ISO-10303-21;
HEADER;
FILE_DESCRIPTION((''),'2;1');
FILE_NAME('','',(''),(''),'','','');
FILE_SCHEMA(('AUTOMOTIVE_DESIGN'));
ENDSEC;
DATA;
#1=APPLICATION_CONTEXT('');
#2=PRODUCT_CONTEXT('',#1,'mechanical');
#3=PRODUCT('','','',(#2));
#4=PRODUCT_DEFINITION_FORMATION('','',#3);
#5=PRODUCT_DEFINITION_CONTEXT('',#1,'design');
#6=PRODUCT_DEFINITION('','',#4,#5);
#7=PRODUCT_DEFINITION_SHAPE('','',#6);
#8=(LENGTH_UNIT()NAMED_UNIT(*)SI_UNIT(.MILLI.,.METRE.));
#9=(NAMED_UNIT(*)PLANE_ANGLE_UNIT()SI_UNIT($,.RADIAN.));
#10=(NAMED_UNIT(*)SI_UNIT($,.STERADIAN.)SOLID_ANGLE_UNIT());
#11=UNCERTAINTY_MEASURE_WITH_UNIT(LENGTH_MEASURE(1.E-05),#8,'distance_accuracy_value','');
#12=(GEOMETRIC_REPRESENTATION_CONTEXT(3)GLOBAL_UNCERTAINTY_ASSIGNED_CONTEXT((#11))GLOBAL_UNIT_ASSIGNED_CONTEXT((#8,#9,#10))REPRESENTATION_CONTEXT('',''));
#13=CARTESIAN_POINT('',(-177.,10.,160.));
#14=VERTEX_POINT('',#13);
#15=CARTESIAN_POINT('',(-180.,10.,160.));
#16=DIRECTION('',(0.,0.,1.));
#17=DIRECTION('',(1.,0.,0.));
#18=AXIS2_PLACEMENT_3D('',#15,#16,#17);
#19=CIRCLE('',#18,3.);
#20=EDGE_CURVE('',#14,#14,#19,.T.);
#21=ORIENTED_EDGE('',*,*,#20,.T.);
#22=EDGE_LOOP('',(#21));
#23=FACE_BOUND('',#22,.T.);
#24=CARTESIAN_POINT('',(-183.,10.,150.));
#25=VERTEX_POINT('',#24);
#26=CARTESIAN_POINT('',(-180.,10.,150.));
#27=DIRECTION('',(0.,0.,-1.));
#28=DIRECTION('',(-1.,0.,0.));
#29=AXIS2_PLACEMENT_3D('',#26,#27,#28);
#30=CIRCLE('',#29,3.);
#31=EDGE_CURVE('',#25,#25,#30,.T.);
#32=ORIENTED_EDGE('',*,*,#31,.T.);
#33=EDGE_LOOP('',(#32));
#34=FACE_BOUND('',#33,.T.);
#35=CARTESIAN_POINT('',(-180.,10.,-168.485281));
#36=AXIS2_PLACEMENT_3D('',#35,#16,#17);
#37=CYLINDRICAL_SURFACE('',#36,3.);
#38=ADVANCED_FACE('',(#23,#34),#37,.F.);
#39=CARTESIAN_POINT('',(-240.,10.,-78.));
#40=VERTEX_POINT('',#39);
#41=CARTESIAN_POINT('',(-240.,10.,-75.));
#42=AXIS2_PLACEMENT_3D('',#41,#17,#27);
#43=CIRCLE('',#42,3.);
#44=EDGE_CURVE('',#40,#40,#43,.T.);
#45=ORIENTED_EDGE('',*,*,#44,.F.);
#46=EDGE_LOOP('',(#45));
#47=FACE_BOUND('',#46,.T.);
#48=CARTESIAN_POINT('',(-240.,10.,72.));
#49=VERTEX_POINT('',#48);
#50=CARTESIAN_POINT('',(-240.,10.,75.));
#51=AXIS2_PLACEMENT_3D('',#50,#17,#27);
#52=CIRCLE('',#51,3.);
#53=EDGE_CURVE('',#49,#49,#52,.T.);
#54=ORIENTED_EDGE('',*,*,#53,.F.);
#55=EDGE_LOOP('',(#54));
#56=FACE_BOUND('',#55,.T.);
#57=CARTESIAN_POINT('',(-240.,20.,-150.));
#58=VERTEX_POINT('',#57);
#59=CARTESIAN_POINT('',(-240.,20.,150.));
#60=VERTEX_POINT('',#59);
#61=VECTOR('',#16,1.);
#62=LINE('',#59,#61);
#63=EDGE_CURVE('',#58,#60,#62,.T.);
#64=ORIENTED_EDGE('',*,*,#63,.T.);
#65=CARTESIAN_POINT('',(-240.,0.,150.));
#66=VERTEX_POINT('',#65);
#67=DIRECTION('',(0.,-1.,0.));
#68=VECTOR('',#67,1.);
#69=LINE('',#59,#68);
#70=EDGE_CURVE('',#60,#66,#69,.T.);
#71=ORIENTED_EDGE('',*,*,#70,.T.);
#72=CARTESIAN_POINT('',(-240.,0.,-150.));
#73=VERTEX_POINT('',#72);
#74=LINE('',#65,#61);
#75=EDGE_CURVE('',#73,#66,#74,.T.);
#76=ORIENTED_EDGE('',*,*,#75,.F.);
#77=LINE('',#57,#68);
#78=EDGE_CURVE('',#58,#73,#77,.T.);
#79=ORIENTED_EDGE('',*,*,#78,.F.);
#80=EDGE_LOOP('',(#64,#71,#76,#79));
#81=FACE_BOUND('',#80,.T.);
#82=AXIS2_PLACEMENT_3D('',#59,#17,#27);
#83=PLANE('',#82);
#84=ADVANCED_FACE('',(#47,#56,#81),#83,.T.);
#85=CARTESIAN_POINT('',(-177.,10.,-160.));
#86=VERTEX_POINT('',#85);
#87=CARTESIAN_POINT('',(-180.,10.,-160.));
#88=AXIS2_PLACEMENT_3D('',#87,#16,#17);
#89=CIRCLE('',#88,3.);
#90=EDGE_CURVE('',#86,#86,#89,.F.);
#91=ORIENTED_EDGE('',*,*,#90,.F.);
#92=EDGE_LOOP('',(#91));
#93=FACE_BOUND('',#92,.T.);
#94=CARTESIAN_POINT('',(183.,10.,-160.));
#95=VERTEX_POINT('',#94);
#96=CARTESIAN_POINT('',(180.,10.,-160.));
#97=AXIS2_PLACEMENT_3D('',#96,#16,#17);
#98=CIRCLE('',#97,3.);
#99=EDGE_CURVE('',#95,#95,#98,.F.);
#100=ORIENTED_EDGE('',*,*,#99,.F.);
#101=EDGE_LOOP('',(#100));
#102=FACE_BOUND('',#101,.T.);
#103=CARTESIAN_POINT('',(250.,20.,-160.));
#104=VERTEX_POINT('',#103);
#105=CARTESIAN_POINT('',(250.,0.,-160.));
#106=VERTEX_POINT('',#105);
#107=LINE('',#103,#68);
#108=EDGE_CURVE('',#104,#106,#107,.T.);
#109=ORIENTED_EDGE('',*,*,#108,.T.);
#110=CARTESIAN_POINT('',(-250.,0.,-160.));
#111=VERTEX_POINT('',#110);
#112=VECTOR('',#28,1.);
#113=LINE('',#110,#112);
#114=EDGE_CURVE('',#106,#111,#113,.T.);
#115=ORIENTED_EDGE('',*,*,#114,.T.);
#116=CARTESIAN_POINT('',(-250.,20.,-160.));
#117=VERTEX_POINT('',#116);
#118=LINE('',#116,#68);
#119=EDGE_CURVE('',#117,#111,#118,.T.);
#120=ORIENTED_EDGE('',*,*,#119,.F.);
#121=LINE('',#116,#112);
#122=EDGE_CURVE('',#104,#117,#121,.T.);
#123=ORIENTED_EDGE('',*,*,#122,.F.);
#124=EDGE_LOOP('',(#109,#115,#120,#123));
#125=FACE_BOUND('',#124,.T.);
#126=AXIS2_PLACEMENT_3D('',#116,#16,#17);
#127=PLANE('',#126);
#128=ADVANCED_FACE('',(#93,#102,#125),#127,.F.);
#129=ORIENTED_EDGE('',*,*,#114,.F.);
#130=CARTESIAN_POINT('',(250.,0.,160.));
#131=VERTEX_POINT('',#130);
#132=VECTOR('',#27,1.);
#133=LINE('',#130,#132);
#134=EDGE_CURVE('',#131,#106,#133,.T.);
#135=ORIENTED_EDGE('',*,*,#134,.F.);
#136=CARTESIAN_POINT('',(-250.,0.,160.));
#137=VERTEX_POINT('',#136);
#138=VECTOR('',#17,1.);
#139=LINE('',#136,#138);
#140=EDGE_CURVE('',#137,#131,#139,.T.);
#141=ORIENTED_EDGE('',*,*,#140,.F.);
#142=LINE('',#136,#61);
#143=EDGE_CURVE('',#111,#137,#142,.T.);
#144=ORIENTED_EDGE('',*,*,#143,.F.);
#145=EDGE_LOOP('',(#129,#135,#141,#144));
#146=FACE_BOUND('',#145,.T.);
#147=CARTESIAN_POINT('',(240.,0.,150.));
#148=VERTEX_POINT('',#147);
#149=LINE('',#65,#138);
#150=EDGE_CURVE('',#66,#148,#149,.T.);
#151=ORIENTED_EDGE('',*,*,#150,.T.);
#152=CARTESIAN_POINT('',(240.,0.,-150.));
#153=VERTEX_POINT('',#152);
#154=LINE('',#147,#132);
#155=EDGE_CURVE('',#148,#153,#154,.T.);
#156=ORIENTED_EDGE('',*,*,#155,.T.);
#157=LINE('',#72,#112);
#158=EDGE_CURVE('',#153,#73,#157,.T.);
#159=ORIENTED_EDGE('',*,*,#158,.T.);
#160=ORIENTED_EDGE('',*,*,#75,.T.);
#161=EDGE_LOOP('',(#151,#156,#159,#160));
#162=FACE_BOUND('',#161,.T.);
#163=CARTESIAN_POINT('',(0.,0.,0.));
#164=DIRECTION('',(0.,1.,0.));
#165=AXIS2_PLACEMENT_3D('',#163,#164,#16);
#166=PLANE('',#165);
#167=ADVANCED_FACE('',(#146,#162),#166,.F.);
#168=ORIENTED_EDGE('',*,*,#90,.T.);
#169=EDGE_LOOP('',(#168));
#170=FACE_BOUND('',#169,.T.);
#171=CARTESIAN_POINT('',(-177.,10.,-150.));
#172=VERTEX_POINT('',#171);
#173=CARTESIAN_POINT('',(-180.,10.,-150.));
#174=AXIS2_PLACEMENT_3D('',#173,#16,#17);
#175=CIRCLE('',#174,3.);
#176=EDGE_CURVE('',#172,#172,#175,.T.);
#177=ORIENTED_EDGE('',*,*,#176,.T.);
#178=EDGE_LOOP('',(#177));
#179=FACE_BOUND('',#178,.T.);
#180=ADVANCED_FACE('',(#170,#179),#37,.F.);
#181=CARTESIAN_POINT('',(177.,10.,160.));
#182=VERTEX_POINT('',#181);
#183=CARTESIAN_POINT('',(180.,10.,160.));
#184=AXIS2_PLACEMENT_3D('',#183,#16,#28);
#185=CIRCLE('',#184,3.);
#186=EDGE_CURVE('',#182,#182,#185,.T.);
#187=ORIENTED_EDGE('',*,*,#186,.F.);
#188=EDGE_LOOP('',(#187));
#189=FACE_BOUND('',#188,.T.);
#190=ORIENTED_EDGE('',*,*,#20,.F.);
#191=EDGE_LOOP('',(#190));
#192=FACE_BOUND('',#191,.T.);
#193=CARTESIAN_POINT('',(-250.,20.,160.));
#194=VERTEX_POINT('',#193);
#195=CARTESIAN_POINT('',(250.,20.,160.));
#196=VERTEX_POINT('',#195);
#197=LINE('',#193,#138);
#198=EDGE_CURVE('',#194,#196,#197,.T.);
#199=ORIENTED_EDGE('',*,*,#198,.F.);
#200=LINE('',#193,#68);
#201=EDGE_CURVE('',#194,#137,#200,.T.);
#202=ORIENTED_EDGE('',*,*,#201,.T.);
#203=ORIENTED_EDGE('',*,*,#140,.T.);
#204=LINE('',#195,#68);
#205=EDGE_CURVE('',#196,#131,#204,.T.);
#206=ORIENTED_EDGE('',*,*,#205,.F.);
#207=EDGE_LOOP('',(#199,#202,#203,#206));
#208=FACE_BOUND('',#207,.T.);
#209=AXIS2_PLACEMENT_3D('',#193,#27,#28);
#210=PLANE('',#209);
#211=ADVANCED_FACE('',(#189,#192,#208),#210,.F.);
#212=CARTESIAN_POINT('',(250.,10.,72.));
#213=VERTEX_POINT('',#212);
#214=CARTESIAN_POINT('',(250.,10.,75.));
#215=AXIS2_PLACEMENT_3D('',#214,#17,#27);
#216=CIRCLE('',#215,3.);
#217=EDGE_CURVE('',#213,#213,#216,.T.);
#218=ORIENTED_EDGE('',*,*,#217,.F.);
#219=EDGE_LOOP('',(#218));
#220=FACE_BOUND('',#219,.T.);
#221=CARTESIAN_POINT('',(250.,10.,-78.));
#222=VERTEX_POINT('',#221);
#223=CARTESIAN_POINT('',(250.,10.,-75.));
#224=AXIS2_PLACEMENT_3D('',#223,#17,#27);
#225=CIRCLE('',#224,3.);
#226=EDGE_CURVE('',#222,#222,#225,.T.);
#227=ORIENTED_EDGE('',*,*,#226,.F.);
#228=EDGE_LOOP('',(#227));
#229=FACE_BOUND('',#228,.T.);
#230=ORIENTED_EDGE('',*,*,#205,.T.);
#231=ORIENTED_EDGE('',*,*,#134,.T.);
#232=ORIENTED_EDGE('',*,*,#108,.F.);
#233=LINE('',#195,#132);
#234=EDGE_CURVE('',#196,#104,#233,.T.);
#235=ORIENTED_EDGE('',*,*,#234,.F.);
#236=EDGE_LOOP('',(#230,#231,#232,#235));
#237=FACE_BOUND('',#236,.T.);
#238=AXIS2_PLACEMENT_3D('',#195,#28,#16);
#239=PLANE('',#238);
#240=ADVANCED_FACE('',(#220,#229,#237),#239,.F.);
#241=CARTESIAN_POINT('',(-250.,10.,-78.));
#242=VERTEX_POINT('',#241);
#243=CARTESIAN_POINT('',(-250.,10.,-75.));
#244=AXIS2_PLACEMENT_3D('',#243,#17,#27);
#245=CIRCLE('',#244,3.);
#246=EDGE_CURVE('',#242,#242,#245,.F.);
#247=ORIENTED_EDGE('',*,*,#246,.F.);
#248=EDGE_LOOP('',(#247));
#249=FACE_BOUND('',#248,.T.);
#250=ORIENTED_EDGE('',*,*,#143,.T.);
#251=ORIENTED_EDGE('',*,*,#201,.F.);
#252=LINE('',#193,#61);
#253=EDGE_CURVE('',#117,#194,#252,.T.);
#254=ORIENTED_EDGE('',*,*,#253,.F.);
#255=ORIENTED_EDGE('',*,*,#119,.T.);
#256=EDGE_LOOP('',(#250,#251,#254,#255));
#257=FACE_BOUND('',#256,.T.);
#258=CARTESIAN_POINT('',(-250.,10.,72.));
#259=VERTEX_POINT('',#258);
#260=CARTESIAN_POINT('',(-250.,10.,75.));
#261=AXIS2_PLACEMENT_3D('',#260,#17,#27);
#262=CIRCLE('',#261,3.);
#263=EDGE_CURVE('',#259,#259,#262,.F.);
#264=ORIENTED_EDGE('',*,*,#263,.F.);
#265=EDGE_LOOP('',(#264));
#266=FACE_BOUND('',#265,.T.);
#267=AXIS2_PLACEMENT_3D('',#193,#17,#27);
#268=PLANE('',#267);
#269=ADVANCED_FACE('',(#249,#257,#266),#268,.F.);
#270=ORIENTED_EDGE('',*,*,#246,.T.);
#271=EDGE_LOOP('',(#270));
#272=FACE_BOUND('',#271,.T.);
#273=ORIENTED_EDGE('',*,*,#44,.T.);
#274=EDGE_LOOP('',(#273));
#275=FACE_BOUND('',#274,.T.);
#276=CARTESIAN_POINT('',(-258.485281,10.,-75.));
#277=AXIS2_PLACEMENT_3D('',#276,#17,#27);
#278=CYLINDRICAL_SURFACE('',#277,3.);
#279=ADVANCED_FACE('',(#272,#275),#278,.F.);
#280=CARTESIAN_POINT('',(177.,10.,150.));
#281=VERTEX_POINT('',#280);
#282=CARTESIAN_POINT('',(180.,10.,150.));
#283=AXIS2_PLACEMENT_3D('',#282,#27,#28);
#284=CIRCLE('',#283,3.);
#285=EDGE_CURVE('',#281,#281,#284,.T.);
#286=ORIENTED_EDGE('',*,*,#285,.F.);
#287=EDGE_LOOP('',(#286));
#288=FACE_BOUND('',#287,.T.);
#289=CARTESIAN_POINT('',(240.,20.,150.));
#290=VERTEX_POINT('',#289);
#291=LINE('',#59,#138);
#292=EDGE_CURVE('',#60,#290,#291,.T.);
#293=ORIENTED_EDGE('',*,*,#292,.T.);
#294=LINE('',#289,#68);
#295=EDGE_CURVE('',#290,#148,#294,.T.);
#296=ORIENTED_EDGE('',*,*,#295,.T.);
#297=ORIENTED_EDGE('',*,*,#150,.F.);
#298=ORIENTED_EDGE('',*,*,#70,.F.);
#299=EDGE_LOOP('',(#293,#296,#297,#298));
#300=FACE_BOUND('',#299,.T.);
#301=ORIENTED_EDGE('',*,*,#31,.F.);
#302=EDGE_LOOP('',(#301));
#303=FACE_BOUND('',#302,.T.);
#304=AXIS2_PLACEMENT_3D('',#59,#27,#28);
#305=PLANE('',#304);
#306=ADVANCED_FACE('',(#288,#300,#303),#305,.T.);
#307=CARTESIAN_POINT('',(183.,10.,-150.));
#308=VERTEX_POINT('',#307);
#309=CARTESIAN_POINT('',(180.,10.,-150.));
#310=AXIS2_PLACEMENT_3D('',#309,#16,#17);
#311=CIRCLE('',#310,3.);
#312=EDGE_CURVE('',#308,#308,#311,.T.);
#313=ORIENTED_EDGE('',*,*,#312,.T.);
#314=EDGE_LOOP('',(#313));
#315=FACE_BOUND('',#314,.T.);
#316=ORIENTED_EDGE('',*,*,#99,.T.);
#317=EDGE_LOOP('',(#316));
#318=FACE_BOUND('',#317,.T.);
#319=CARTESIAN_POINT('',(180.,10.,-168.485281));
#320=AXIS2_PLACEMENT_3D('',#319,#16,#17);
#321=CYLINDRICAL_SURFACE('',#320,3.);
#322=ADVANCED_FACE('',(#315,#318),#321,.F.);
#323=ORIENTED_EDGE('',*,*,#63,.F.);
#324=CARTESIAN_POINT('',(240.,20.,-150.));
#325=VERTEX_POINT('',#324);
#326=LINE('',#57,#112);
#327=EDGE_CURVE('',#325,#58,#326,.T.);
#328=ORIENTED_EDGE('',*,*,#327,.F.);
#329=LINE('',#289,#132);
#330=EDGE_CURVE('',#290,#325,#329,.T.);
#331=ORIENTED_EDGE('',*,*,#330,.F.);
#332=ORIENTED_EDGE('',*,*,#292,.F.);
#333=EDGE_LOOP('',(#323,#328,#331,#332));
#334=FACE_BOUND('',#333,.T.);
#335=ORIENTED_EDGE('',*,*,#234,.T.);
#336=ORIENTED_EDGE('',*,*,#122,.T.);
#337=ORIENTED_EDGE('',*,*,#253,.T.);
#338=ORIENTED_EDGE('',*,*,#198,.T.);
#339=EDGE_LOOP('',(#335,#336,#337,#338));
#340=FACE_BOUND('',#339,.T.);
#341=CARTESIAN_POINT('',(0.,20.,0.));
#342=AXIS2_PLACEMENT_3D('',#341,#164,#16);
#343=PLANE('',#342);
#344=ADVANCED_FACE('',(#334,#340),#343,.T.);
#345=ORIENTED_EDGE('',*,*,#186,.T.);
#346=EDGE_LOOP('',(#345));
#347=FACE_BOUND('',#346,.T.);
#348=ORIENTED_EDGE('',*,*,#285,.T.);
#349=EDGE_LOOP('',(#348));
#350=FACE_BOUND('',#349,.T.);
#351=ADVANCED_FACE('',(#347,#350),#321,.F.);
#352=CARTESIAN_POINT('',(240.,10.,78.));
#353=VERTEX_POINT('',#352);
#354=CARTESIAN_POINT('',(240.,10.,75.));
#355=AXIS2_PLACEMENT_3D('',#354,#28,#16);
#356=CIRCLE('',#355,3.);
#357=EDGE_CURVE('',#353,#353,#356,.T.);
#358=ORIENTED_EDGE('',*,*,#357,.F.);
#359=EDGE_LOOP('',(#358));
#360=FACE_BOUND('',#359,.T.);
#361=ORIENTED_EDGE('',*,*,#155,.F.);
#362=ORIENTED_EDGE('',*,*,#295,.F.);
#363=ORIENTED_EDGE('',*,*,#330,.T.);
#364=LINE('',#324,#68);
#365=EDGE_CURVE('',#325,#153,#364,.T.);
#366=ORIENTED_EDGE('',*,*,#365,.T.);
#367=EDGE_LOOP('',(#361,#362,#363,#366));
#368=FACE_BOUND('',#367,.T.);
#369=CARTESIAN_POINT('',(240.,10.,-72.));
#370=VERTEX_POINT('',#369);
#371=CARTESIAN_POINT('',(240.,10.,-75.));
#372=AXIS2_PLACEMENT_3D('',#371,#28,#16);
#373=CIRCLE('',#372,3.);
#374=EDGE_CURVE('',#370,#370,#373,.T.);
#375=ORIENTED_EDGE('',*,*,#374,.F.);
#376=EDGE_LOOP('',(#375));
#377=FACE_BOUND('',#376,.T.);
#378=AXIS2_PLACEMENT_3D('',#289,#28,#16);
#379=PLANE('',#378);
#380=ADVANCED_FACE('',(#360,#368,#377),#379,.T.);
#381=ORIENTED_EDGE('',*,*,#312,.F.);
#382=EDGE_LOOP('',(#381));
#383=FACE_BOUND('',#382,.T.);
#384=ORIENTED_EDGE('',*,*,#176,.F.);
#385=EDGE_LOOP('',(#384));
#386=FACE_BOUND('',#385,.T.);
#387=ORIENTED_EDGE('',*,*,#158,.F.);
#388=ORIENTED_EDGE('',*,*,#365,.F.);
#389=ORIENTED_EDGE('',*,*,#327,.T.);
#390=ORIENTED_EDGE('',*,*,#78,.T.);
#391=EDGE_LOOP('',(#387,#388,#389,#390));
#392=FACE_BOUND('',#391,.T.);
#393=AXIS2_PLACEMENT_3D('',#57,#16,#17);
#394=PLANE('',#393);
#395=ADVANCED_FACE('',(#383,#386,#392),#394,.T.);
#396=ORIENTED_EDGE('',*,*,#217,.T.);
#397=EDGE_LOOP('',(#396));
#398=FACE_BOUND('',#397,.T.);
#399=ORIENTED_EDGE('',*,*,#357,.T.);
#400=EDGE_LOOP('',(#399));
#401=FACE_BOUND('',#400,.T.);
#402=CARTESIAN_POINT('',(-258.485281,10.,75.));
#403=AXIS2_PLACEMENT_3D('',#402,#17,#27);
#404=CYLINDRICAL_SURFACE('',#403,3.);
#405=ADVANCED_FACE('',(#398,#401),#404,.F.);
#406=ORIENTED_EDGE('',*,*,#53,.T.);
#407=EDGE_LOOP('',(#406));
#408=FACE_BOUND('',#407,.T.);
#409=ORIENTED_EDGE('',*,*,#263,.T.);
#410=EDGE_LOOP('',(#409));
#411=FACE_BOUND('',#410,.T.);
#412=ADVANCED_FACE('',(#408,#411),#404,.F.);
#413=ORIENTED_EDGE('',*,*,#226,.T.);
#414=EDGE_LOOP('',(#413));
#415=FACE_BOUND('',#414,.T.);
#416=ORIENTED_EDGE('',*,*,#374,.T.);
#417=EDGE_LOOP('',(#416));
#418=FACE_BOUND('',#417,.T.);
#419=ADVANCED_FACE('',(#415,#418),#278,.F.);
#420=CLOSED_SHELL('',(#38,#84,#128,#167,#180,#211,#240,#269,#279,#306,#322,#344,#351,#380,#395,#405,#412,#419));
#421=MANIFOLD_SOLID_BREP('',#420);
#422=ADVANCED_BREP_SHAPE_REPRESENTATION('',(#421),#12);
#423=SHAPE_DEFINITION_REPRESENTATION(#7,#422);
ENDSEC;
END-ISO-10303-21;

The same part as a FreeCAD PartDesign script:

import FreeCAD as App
import Part
import Sketcher
from FreeCAD import Vector


def add_polygon(sketch, points):
    """Adds a closed chain of lines whose ends are joined by coincident constraints."""
    first, n = sketch.GeometryCount, len(points)
    for a, b in zip(points, points[1:] + points[:1]):
        sketch.addGeometry(Part.LineSegment(App.Vector(*a, 0), App.Vector(*b, 0)), False)
    for i in range(n):
        sketch.addConstraint(Sketcher.Constraint("Coincident", first + i, 2, first + (i + 1) % n, 1))

doc = App.newDocument("Part")
body = doc.addObject("PartDesign::Body", "Body")

sketch1 = body.newObject("Sketcher::SketchObject", "Sketch")
sketch1.AttachmentSupport = (doc.getObject("XZ_Plane"), [""])
sketch1.MapMode = "FlatFace"
add_polygon(sketch1, [(-250, -160), (-250, 160), (250, 160), (250, -160)])
add_polygon(sketch1, [(240, 150), (-240, 150), (-240, -150), (240, -150)])
sketch1.addConstraint([
    Sketcher.Constraint("Vertical", 0),
    Sketcher.Constraint("Horizontal", 1),
    Sketcher.Constraint("Vertical", 2),
    Sketcher.Constraint("Horizontal", 3),
    Sketcher.Constraint("Horizontal", 4),
    Sketcher.Constraint("Vertical", 5),
    Sketcher.Constraint("Horizontal", 6),
    Sketcher.Constraint("Vertical", 7),
    Sketcher.Constraint("Symmetric", 0, 2, 2, 2, -1, 1),
    Sketcher.Constraint("Symmetric", 4, 2, 6, 2, -1, 1),
    Sketcher.Constraint("DistanceX", 1, 1, 1, 2, 500.0),
    Sketcher.Constraint("DistanceX", 4, 2, 4, 1, 480.0),
    Sketcher.Constraint("DistanceY", 0, 1, 0, 2, 320.0),
    Sketcher.Constraint("DistanceY", 5, 2, 5, 1, 300.0),
])
pad1 = body.newObject("PartDesign::Pad", "Pad")
pad1.Profile = sketch1
pad1.Length = 20
pad1.Reversed = True

sketch2 = body.newObject("Sketcher::SketchObject", "Sketch001")
sketch2.AttachmentSupport = (doc.getObject("YZ_Plane"), [""])
sketch2.MapMode = "FlatFace"
sketch2.AttachmentOffset = App.Placement(Vector(0, 0, 250), App.Rotation())
sketch2.addGeometry([
    Part.Circle(Vector(10, -75, 0), Vector(0, 0, 1), 3),
    Part.Circle(Vector(10, 75, 0), Vector(0, 0, 1), 3),
], False)
sketch2.addConstraint([
    Sketcher.Constraint("Equal", 0, 1),
    Sketcher.Constraint("Symmetric", 0, 3, 1, 3, -1),
    Sketcher.Constraint("Diameter", 0, 6.0),
    Sketcher.Constraint("DistanceX", -1, 1, 0, 3, 10.0),
    Sketcher.Constraint("DistanceY", 0, 3, -1, 1, 75.0),
])
pocket1 = body.newObject("PartDesign::Pocket", "Pocket")
pocket1.Profile = sketch2
pocket1.Length = 500

sketch3 = body.newObject("Sketcher::SketchObject", "Sketch002")
sketch3.AttachmentSupport = (doc.getObject("XY_Plane"), [""])
sketch3.MapMode = "FlatFace"
sketch3.AttachmentOffset = App.Placement(Vector(0, 0, 160), App.Rotation())
sketch3.addGeometry([
    Part.Circle(Vector(-180, 10, 0), Vector(0, 0, 1), 3),
    Part.Circle(Vector(180, 10, 0), Vector(0, 0, 1), 3),
], False)
sketch3.addConstraint([
    Sketcher.Constraint("Equal", 0, 1),
    Sketcher.Constraint("Symmetric", 0, 3, 1, 3, -2),
    Sketcher.Constraint("Diameter", 0, 6.0),
    Sketcher.Constraint("DistanceX", 0, 3, -1, 1, 180.0),
    Sketcher.Constraint("DistanceY", -1, 1, 0, 3, 10.0),
])
pocket2 = body.newObject("PartDesign::Pocket", "Pocket001")
pocket2.Profile = sketch3
pocket2.Length = 320

doc.recompute()
